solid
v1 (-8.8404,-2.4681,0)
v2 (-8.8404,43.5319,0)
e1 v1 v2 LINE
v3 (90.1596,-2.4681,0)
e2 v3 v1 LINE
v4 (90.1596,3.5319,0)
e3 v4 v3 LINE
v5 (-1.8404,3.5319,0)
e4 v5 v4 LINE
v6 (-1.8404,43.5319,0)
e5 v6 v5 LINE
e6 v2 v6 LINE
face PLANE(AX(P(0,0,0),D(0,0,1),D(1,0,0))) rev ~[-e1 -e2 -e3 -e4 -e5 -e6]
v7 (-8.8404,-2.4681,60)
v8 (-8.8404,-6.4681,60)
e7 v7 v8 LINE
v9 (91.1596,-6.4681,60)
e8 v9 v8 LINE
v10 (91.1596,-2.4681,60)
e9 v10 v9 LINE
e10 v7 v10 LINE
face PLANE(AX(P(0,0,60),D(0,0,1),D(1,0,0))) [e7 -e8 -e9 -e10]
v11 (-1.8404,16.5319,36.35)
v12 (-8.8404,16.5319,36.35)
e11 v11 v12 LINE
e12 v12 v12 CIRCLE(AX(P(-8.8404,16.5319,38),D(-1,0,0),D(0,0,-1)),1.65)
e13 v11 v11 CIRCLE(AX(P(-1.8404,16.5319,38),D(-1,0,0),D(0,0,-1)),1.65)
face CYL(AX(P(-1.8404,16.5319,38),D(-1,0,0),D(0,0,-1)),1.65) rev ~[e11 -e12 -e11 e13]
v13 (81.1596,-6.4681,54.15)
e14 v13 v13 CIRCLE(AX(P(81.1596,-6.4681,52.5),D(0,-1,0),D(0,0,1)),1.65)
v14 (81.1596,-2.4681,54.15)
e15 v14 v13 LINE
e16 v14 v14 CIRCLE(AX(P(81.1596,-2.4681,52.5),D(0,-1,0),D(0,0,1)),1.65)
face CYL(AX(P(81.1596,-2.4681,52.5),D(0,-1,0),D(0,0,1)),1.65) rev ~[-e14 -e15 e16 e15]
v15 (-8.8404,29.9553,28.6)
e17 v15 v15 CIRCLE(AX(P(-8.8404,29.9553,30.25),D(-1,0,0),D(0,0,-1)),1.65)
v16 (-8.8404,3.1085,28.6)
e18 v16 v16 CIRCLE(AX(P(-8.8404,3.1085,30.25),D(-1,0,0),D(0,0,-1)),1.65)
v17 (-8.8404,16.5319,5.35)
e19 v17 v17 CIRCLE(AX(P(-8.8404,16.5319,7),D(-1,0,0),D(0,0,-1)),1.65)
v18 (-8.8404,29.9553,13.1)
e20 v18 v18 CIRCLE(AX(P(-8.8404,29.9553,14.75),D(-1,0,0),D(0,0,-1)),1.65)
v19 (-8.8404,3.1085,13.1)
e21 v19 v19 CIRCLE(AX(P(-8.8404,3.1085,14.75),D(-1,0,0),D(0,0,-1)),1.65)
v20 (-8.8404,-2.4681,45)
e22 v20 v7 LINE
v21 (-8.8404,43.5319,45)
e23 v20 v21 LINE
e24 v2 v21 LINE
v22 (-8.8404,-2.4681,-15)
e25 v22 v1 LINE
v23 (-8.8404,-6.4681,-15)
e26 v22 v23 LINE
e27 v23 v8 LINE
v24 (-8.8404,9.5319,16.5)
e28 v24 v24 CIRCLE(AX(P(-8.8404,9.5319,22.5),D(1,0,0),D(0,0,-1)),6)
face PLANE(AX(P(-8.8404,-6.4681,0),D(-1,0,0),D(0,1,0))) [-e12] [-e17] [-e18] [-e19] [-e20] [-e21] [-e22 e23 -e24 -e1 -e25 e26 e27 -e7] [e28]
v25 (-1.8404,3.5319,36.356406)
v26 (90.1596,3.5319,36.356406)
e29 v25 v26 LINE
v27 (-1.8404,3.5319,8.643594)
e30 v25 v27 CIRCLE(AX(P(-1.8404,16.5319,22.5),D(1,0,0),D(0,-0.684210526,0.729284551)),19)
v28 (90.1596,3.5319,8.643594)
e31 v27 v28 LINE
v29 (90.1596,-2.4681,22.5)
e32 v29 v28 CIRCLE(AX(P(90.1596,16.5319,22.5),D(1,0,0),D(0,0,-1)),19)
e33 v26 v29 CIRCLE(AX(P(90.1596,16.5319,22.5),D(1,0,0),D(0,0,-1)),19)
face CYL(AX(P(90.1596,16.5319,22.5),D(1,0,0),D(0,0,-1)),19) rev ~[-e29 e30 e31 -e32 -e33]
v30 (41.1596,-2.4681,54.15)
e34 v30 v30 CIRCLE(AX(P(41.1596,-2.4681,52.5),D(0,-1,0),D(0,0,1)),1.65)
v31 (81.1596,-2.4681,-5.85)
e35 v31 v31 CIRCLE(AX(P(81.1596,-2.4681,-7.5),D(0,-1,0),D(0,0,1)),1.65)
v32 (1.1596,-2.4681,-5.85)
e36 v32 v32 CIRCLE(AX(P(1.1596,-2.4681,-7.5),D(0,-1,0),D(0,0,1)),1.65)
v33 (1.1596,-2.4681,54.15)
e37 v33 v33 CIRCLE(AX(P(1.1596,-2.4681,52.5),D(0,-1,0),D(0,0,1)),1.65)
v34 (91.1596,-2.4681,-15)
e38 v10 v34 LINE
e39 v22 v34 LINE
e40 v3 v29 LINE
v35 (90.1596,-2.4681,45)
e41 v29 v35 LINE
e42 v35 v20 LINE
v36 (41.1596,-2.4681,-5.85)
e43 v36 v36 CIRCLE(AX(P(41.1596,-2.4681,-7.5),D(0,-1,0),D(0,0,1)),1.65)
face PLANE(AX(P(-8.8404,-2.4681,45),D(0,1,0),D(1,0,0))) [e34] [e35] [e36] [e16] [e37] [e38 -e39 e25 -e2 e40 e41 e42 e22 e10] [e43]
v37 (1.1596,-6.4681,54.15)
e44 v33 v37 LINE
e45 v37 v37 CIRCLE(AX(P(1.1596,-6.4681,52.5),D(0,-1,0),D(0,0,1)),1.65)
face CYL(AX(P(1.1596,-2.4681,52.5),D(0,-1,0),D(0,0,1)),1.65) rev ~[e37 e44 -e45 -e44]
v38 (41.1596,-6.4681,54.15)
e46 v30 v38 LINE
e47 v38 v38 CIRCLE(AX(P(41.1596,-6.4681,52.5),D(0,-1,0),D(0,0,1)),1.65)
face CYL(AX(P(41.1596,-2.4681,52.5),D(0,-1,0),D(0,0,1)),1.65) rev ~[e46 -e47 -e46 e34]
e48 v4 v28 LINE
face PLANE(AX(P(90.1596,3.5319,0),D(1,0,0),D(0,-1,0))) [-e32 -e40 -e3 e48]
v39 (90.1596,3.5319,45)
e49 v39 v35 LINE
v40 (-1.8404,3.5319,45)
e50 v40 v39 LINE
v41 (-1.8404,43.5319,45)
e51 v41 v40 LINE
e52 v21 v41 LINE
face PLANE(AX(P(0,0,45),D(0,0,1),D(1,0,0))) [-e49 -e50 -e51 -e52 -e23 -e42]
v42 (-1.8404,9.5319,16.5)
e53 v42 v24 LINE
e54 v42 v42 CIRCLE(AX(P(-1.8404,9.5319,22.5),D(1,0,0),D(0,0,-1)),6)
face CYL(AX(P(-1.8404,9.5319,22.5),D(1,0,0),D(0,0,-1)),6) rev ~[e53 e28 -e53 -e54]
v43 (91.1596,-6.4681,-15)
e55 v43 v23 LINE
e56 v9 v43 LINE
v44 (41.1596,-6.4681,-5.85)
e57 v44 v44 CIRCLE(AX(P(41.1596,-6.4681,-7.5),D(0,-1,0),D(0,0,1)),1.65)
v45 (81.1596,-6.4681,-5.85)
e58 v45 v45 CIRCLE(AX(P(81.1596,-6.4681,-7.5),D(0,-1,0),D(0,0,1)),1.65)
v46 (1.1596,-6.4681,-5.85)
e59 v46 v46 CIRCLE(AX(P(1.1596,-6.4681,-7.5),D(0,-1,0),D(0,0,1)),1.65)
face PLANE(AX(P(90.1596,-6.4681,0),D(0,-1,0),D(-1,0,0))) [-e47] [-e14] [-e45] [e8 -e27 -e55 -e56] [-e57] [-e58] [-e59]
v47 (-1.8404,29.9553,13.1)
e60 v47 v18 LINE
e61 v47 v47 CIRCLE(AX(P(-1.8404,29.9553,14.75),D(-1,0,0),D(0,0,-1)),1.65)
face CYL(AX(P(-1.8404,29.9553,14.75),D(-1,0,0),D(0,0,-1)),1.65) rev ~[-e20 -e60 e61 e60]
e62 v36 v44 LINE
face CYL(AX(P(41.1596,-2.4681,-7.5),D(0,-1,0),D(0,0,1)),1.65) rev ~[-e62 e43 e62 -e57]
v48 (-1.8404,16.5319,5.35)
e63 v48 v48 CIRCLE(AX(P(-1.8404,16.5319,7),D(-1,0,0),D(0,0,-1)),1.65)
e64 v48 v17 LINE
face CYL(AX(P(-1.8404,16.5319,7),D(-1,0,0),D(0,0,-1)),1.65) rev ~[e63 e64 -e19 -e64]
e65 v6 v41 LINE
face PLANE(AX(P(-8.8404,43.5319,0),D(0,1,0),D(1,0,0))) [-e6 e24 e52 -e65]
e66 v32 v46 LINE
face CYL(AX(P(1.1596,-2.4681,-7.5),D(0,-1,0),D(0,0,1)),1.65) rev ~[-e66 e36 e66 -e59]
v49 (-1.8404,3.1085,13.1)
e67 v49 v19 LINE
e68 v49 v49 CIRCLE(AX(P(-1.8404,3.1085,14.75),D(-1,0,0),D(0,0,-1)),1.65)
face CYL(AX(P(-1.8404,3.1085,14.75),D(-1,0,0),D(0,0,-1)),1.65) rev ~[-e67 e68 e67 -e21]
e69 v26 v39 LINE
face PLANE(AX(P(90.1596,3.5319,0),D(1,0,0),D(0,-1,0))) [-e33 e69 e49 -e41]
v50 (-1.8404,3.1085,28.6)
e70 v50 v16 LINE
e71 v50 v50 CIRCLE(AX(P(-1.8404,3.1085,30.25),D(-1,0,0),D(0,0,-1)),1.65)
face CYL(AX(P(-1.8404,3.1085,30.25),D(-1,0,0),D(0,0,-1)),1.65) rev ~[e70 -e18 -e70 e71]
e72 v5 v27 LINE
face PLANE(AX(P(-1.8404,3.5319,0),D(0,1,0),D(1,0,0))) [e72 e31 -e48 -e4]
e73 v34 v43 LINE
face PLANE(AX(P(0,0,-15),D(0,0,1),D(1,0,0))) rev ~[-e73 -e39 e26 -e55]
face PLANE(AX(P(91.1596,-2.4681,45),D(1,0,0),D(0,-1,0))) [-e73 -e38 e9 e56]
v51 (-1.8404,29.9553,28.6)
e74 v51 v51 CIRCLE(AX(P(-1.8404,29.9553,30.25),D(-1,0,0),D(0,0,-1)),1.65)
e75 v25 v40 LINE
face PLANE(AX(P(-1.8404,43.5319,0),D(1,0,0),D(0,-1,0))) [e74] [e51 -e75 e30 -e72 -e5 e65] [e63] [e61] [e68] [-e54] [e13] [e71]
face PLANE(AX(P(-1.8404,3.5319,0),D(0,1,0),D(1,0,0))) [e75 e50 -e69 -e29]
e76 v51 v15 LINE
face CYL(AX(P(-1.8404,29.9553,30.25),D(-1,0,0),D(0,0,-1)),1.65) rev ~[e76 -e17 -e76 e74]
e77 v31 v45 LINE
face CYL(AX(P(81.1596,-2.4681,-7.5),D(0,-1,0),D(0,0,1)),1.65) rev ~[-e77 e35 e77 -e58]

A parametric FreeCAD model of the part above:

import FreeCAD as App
import Part
import Sketcher

V = App.Vector
Q = App.Units.Quantity

doc = App.newDocument("Part")
body = doc.addObject("PartDesign::Body", "Body")

sketch1 = body.newObject("Sketcher::SketchObject", "Sketch")
sketch1.AttachmentSupport = (doc.getObject("XY_Plane"), [""])
sketch1.MapMode = "FlatFace"
sketch1.addGeometry(Part.LineSegment(V(-2, 44, 0), V(-9, 44, 0)), False)
sketch1.addGeometry(Part.LineSegment(V(-9, 44, 0), V(-9, -6, 0)), False)
sketch1.addGeometry(Part.LineSegment(V(-9, -6, 0), V(90, -6, 0)), False)
sketch1.addGeometry(Part.LineSegment(V(90, -6, 0), V(90, 4, 0)), False)
sketch1.addGeometry(Part.LineSegment(V(90, 4, 0), V(-2, 4, 0)), False)
sketch1.addGeometry(Part.LineSegment(V(-2, 4, 0), V(-2, 44, 0)), False)
sketch1.addConstraint(Sketcher.Constraint("Coincident", 0, 2, 1, 1))
sketch1.addConstraint(Sketcher.Constraint("Coincident", 1, 2, 2, 1))
sketch1.addConstraint(Sketcher.Constraint("Coincident", 2, 2, 3, 1))
sketch1.addConstraint(Sketcher.Constraint("Coincident", 3, 2, 4, 1))
sketch1.addConstraint(Sketcher.Constraint("Coincident", 4, 2, 5, 1))
sketch1.addConstraint(Sketcher.Constraint("Coincident", 5, 2, 0, 1))
sketch1.addConstraint(Sketcher.Constraint("Horizontal", 0))
sketch1.addConstraint(Sketcher.Constraint("Vertical", 1))
sketch1.addConstraint(Sketcher.Constraint("Horizontal", 2))
sketch1.addConstraint(Sketcher.Constraint("Vertical", 3))
sketch1.addConstraint(Sketcher.Constraint("Horizontal", 4))
sketch1.addConstraint(Sketcher.Constraint("Vertical", 5))
sketch1.addConstraint(Sketcher.Constraint("DistanceX", 0, 2, 0, 1, Q("7 mm")))
sketch1.addConstraint(Sketcher.Constraint("DistanceX", 4, 2, 4, 1, Q("92 mm")))
sketch1.addConstraint(Sketcher.Constraint("DistanceY", 1, 2, 1, 1, Q("50 mm")))
sketch1.addConstraint(Sketcher.Constraint("DistanceY", 3, 1, 3, 2, Q("10 mm")))
sketch1.addConstraint(Sketcher.Constraint("DistanceY", -1, 1, 0, 2, Q("43.532 mm")))
sketch1.addConstraint(Sketcher.Constraint("DistanceX", 0, 2, -1, 1, Q("8.8404 mm")))
pad1 = body.newObject("PartDesign::Pad", "Pad")
pad1.Profile = sketch1
pad1.Length = 45

sketch2 = body.newObject("Sketcher::SketchObject", "Sketch001")
sketch2.AttachmentSupport = (doc.getObject("YZ_Plane"), [""])
sketch2.MapMode = "FlatFace"
sketch2.AttachmentOffset = App.Placement(V(0, 0, 90.1596), App.Rotation())
sketch2.addGeometry(Part.Circle(V(17, 22, 0), V(0, 0, 1), 19), False)
sketch2.addConstraint(Sketcher.Constraint("Diameter", 0, Q("38 mm")))
sketch2.addConstraint(Sketcher.Constraint("DistanceY", -1, 1, 0, 3, Q("22.5 mm")))
sketch2.addConstraint(Sketcher.Constraint("DistanceX", -1, 1, 0, 3, Q("16.532 mm")))
pocket1 = body.newObject("PartDesign::Pocket", "Pocket")
pocket1.Profile = sketch2
pocket1.Length = 92

sketch3 = body.newObject("Sketcher::SketchObject", "Sketch002")
sketch3.AttachmentSupport = (doc.getObject("YZ_Plane"), [""])
sketch3.MapMode = "FlatFace"
sketch3.AttachmentOffset = App.Placement(V(0, 0, -1.8404), App.Rotation())
sketch3.addGeometry(Part.Circle(V(30, 30.2, 0), V(0, 0, 1), 1.6), False)
sketch3.addGeometry(Part.Circle(V(30, 14.8, 0), V(0, 0, 1), 1.6), False)
sketch3.addGeometry(Part.Circle(V(16.5, 7, 0), V(0, 0, 1), 1.6), False)
sketch3.addGeometry(Part.Circle(V(3.1, 14.8, 0), V(0, 0, 1), 1.6), False)
sketch3.addGeometry(Part.Circle(V(3.1, 30.2, 0), V(0, 0, 1), 1.6), False)
sketch3.addGeometry(Part.Circle(V(16.5, 38, 0), V(0, 0, 1), 1.6), False)
sketch3.addConstraint(Sketcher.Constraint("Equal", 0, 1))
sketch3.addConstraint(Sketcher.Constraint("Equal", 1, 2))
sketch3.addConstraint(Sketcher.Constraint("Equal", 2, 3))
sketch3.addConstraint(Sketcher.Constraint("Equal", 3, 4))
sketch3.addConstraint(Sketcher.Constraint("Equal", 4, 5))
sketch3.addConstraint(Sketcher.Constraint("Horizontal", 1, 3, 3, 3))
sketch3.addConstraint(Sketcher.Constraint("Horizontal", 0, 3, 4, 3))
sketch3.addConstraint(Sketcher.Constraint("Vertical", 0, 3, 1, 3))
sketch3.addConstraint(Sketcher.Constraint("Vertical", 3, 3, 4, 3))
sketch3.addConstraint(Sketcher.Constraint("Vertical", 2, 3, 5, 3))
sketch3.addConstraint(Sketcher.Constraint("Diameter", 0, Q("3.3 mm")))
sketch3.addConstraint(Sketcher.Constraint("DistanceY", -1, 1, 2, 3, Q("7 mm")))
sketch3.addConstraint(Sketcher.Constraint("DistanceY", -1, 1, 5, 3, Q("38 mm")))
sketch3.addConstraint(Sketcher.Constraint("DistanceY", 1, 3, 0, 3, Q("15.5 mm")))
sketch3.addConstraint(Sketcher.Constraint("DistanceY", -1, 1, 0, 3, Q("30.25 mm")))
sketch3.addConstraint(Sketcher.Constraint("DistanceX", -1, 1, 2, 3, Q("16.532 mm")))
sketch3.addConstraint(Sketcher.Constraint("DistanceX", -1, 1, 0, 3, Q("29.9553 mm")))
sketch3.addConstraint(Sketcher.Constraint("DistanceX", -1, 1, 3, 3, Q("3.1085 mm")))
doc.recompute()
hole = body.newObject("PartDesign::Hole", "Hole")
hole.Profile = sketch3
hole.ThreadType = "None"
hole.Diameter = 3.3
hole.DepthType = "ThroughAll"

sketch4 = body.newObject("Sketcher::SketchObject", "Sketch003")
sketch4.AttachmentSupport = (doc.getObject("YZ_Plane"), [""])
sketch4.MapMode = "FlatFace"
sketch4.AttachmentOffset = App.Placement(V(0, 0, -1.8404), App.Rotation())
sketch4.addGeometry(Part.Circle(V(10, 22, 0), V(0, 0, 1), 6), False)
sketch4.addConstraint(Sketcher.Constraint("Diameter", 0, Q("12 mm")))
sketch4.addConstraint(Sketcher.Constraint("DistanceY", -1, 1, 0, 3, Q("22.5 mm")))
sketch4.addConstraint(Sketcher.Constraint("DistanceX", -1, 1, 0, 3, Q("9.532 mm")))
pocket2 = body.newObject("PartDesign::Pocket", "Pocket001")
pocket2.Profile = sketch4
pocket2.Length = 7

sketch5 = body.newObject("Sketcher::SketchObject", "Sketch004")
sketch5.AttachmentSupport = (doc.getObject("XY_Plane"), [""])
sketch5.MapMode = "FlatFace"
sketch5.AttachmentOffset = App.Placement(V(0, 0, 45), App.Rotation())
sketch5.addGeometry(Part.LineSegment(V(91.2, -2.5, 0), V(-8.8, -2.5, 0)), False)
sketch5.addGeometry(Part.LineSegment(V(-8.8, -2.5, 0), V(-8.8, -6.5, 0)), False)
sketch5.addGeometry(Part.LineSegment(V(-8.8, -6.5, 0), V(91.2, -6.5, 0)), False)
sketch5.addGeometry(Part.LineSegment(V(91.2, -6.5, 0), V(91.2, -2.5, 0)), False)
sketch5.addConstraint(Sketcher.Constraint("Coincident", 0, 2, 1, 1))
sketch5.addConstraint(Sketcher.Constraint("Coincident", 1, 2, 2, 1))
sketch5.addConstraint(Sketcher.Constraint("Coincident", 2, 2, 3, 1))
sketch5.addConstraint(Sketcher.Constraint("Coincident", 3, 2, 0, 1))
sketch5.addConstraint(Sketcher.Constraint("Horizontal", 0))
sketch5.addConstraint(Sketcher.Constraint("Vertical", 1))
sketch5.addConstraint(Sketcher.Constraint("Horizontal", 2))
sketch5.addConstraint(Sketcher.Constraint("Vertical", 3))
sketch5.addConstraint(Sketcher.Constraint("DistanceX", 0, 2, 0, 1, Q("100 mm")))
sketch5.addConstraint(Sketcher.Constraint("DistanceY", 1, 2, 1, 1, Q("4 mm")))
sketch5.addConstraint(Sketcher.Constraint("DistanceY", 0, 2, -1, 1, Q("2.468 mm")))
sketch5.addConstraint(Sketcher.Constraint("DistanceX", 0, 2, -1, 1, Q("8.8404 mm")))
pad2 = body.newObject("PartDesign::Pad", "Pad001")
pad2.Profile = sketch5
pad2.Type = "TwoLengths"
pad2.Length = 15
pad2.Length2 = 60

sketch6 = body.newObject("Sketcher::SketchObject", "Sketch005")
sketch6.AttachmentSupport = (doc.getObject("XZ_Plane"), [""])
sketch6.MapMode = "FlatFace"
sketch6.AttachmentOffset = App.Placement(V(0, 0, 2.4681), App.Rotation())
sketch6.addGeometry(Part.Circle(V(1.2, -7.5, 0), V(0, 0, 1), 1.6), False)
sketch6.addGeometry(Part.Circle(V(81.2, -7.5, 0), V(0, 0, 1), 1.6), False)
sketch6.addGeometry(Part.Circle(V(81.2, 52.5, 0), V(0, 0, 1), 1.6), False)
sketch6.addGeometry(Part.Circle(V(1.2, 52.5, 0), V(0, 0, 1), 1.6), False)
sketch6.addGeometry(Part.Circle(V(41.2, 52.5, 0), V(0, 0, 1), 1.6), False)
sketch6.addGeometry(Part.Circle(V(41.2, -7.5, 0), V(0, 0, 1), 1.6), False)
sketch6.addConstraint(Sketcher.Constraint("Equal", 0, 1))
sketch6.addConstraint(Sketcher.Constraint("Equal", 1, 2))
sketch6.addConstraint(Sketcher.Constraint("Equal", 2, 3))
sketch6.addConstraint(Sketcher.Constraint("Equal", 3, 4))
sketch6.addConstraint(Sketcher.Constraint("Equal", 4, 5))
sketch6.addConstraint(Sketcher.Constraint("Horizontal", 0, 3, 1, 3))
sketch6.addConstraint(Sketcher.Constraint("Horizontal", 2, 3, 3, 3))
sketch6.addConstraint(Sketcher.Constraint("Horizontal", 3, 3, 4, 3))
sketch6.addConstraint(Sketcher.Constraint("Horizontal", 1, 3, 5, 3))
sketch6.addConstraint(Sketcher.Constraint("Vertical", 1, 3, 2, 3))
sketch6.addConstraint(Sketcher.Constraint("Vertical", 0, 3, 3, 3))
sketch6.addConstraint(Sketcher.Constraint("Vertical", 4, 3, 5, 3))
sketch6.addConstraint(Sketcher.Constraint("Diameter", 0, Q("3.3 mm")))
sketch6.addConstraint(Sketcher.Constraint("DistanceX", 0, 3, 1, 3, Q("80 mm")))
sketch6.addConstraint(Sketcher.Constraint("DistanceY", 1, 3, 2, 3, Q("60 mm")))
sketch6.addConstraint(Sketcher.Constraint("DistanceX", 4, 3, 2, 3, Q("40 mm")))
sketch6.addConstraint(Sketcher.Constraint("DistanceY", 0, 3, -1, 1, Q("7.5 mm")))
sketch6.addConstraint(Sketcher.Constraint("DistanceX", -1, 1, 0, 3, Q("1.1596 mm")))
doc.recompute()
hole2 = body.newObject("PartDesign::Hole", "Hole001")
hole2.Profile = sketch6
hole2.ThreadType = "None"
hole2.Diameter = 3.3
hole2.DepthType = "ThroughAll"
hole2.Reversed = True

doc.recompute()
